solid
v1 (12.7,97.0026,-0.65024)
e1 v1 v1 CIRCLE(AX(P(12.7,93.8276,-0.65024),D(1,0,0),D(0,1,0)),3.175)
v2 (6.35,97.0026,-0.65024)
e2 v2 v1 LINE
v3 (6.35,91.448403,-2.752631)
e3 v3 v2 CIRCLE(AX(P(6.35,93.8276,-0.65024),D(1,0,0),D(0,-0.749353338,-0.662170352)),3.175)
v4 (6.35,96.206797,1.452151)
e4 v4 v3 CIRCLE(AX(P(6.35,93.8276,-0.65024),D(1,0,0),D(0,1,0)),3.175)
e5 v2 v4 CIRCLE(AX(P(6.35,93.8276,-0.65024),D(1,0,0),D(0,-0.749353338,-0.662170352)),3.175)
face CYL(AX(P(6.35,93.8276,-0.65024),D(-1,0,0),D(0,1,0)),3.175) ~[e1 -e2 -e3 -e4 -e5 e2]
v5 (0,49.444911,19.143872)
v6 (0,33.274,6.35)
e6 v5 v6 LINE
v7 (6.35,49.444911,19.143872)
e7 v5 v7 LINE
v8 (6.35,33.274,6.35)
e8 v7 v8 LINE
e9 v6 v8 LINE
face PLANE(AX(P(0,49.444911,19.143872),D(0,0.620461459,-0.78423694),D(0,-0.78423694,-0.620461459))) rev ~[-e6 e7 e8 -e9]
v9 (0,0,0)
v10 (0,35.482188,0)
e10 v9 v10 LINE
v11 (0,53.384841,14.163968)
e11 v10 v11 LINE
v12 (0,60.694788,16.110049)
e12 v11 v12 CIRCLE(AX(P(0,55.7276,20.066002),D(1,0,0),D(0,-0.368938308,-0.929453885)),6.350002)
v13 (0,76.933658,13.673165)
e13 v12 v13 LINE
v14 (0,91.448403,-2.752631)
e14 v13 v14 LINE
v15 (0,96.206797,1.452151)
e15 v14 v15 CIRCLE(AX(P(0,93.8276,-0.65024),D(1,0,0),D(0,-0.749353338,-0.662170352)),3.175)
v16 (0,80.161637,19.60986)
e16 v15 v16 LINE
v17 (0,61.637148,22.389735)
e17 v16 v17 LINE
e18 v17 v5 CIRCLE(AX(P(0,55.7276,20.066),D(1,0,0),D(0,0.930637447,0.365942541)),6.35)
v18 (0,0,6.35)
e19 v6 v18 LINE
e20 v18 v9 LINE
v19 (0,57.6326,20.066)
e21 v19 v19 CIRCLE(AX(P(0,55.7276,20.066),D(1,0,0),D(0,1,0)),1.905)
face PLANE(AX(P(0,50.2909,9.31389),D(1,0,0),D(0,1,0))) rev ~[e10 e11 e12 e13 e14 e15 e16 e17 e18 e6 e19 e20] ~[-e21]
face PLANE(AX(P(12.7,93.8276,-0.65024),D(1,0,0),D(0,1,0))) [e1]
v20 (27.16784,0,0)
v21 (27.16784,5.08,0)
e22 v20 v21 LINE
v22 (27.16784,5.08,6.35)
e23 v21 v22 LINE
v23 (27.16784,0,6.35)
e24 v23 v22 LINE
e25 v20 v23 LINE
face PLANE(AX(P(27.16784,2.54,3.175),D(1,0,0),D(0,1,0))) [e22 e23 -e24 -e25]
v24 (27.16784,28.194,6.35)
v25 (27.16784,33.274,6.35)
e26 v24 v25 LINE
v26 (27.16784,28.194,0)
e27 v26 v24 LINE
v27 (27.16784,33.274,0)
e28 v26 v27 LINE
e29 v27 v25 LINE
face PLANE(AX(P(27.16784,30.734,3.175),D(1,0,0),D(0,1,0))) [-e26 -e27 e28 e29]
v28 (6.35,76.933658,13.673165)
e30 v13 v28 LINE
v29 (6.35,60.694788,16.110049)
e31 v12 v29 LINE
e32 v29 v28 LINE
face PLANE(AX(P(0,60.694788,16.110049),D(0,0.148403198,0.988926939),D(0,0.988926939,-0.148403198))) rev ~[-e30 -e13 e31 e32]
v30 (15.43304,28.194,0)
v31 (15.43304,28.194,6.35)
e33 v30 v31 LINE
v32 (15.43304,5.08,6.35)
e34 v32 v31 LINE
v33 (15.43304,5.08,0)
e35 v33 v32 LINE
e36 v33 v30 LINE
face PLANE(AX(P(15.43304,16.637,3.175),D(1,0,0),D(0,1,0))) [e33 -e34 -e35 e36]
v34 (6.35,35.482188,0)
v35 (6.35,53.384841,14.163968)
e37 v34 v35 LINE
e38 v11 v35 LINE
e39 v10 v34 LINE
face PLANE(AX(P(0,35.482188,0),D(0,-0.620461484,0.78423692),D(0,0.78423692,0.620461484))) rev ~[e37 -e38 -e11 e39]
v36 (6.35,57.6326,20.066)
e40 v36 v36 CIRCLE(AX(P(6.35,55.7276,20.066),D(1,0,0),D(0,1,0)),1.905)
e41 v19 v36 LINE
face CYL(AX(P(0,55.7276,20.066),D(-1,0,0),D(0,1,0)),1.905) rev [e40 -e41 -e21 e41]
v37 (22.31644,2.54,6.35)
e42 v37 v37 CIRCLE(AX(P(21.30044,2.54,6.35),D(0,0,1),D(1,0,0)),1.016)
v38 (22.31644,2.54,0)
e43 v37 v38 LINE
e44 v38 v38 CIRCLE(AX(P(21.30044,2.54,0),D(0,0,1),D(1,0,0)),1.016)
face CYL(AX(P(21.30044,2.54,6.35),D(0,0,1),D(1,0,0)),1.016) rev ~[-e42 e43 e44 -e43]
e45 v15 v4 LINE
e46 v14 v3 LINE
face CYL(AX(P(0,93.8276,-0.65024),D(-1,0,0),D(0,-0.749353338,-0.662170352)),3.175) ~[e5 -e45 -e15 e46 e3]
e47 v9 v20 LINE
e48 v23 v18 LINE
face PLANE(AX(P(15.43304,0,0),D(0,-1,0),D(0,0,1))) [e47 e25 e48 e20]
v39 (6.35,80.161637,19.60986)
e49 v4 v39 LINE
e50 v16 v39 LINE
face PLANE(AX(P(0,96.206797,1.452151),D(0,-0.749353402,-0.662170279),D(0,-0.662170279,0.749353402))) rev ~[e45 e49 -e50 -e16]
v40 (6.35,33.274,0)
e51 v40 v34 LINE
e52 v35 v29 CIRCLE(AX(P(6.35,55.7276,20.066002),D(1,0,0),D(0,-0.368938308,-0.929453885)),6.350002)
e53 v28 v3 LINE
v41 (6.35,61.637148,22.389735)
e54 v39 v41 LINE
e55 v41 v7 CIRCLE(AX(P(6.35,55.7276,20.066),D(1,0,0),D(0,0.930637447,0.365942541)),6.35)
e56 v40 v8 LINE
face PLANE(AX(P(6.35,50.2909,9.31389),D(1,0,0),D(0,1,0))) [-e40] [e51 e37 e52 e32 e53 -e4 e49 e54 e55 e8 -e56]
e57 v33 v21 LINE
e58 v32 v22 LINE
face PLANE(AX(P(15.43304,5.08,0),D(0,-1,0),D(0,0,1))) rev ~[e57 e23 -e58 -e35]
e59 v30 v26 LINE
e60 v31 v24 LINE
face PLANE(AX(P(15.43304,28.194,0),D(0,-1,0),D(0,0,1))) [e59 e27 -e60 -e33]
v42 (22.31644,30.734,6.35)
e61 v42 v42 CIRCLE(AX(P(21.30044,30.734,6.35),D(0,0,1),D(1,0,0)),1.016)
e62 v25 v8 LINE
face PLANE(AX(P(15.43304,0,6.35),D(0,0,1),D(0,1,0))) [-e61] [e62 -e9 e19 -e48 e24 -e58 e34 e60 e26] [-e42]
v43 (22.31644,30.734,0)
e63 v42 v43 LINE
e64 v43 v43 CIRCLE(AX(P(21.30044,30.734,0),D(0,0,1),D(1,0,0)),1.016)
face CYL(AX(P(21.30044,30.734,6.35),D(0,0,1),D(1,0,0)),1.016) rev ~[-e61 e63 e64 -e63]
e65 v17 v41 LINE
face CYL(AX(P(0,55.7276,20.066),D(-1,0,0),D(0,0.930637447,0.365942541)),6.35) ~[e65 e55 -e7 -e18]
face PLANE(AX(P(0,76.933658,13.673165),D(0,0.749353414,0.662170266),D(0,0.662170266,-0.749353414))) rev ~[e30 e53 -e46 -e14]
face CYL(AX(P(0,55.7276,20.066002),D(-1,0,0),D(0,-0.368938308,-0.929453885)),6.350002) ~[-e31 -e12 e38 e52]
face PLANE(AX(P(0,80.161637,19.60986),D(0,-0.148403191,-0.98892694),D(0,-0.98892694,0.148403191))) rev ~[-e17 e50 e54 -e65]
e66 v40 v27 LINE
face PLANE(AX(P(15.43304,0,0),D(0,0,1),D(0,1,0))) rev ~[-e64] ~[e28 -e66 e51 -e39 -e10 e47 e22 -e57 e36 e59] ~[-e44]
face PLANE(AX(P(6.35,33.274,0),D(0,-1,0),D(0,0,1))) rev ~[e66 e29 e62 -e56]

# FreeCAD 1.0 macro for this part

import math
import FreeCAD as App
import Part
import Sketcher
from FreeCAD import Vector
Q = App.Units.Quantity


def add_polygon(sketch, points):
    """Adds a closed chain of lines whose ends are joined by coincident constraints."""
    first, n = sketch.GeometryCount, len(points)
    for a, b in zip(points, points[1:] + points[:1]):
        sketch.addGeometry(Part.LineSegment(App.Vector(*a, 0), App.Vector(*b, 0)), False)
    for i in range(n):
        sketch.addConstraint(Sketcher.Constraint("Coincident", first + i, 2, first + (i + 1) % n, 1))

doc = App.newDocument("Part")
body = doc.addObject("PartDesign::Body", "Body")

sketch1 = body.newObject("Sketcher::SketchObject", "Sketch")
sketch1.AttachmentSupport = (doc.getObject("YZ_Plane"), [""])
sketch1.MapMode = "FlatFace"
sketch1.addGeometry([
    Part.LineSegment(Vector(0, 6.3, 0), Vector(0, 0, 0)),
    Part.LineSegment(Vector(0, 0, 0), Vector(35.5, 0, 0)),
    Part.LineSegment(Vector(35.5, 0, 0), Vector(53.4, 14.2, 0)),
    Part.ArcOfCircle(Part.Circle(Vector(55.7, 20.1, 0), Vector(0, 0, 1), 6.4), math.radians(-112), math.radians(-39)),
    Part.LineSegment(Vector(60.7, 16.1, 0), Vector(76.9, 13.7, 0)),
    Part.LineSegment(Vector(76.9, 13.7, 0), Vector(91.4, -2.8, 0)),
    Part.ArcOfCircle(Part.Circle(Vector(93.8, -0.7, 0), Vector(0, 0, 1), 3.2), math.radians(-139), math.radians(41)),
    Part.LineSegment(Vector(96.2, 1.5, 0), Vector(80.2, 19.6, 0)),
    Part.LineSegment(Vector(80.2, 19.6, 0), Vector(61.6, 22.4, 0)),
    Part.ArcOfCircle(Part.Circle(Vector(55.7, 20.1, 0), Vector(0, 0, 1), 6.4), math.radians(21), math.radians(188)),
    Part.LineSegment(Vector(49.4, 19.1, 0), Vector(33.3, 6.3, 0)),
    Part.LineSegment(Vector(33.3, 6.3, 0), Vector(0, 6.3, 0)),
    Part.Circle(Vector(55.7, 20.1, 0), Vector(0, 0, 1), 1.9),
], False)
sketch1.addConstraint([
    Sketcher.Constraint("Coincident", 0, 2, 1, 1),
    Sketcher.Constraint("Coincident", 1, 2, 2, 1),
    Sketcher.Constraint("Coincident", 2, 2, 3, 1),
    Sketcher.Constraint("Coincident", 3, 2, 4, 1),
    Sketcher.Constraint("Coincident", 4, 2, 5, 1),
    Sketcher.Constraint("Tangent", 5, 2, 6, 1),
    Sketcher.Constraint("Tangent", 6, 2, 7, 1),
    Sketcher.Constraint("Coincident", 7, 2, 8, 1),
    Sketcher.Constraint("Coincident", 8, 2, 9, 1),
    Sketcher.Constraint("Coincident", 9, 2, 10, 1),
    Sketcher.Constraint("Coincident", 10, 2, 11, 1),
    Sketcher.Constraint("Coincident", 11, 2, 0, 1),
    Sketcher.Constraint("Vertical", 0),
    Sketcher.Constraint("Horizontal", 1),
    Sketcher.Constraint("Horizontal", 11),
    Sketcher.Constraint("Coincident", 0, 2, -1, 1),
    Sketcher.Constraint("Coincident", 9, 3, 3, 3),
    Sketcher.Constraint("Coincident", 12, 3, 3, 3),
    Sketcher.Constraint("Equal", 3, 9),
    Sketcher.Constraint("Parallel", 5, 7),
    Sketcher.Constraint("Parallel", 4, 8),
    Sketcher.Constraint("Parallel", 2, 10),
    Sketcher.Constraint("Diameter", 12, Q("0.15 in")),
    Sketcher.Constraint("Radius", 3, Q("0.2500001 in")),
    Sketcher.Constraint("Radius", 6, Q("0.125 in")),
    Sketcher.Constraint("DistanceX", 11, 2, 11, 1, Q("1.31 in")),
    Sketcher.Constraint("DistanceY", 0, 2, 0, 1, Q("0.25 in")),
    Sketcher.Constraint("DistanceX", 3, 3, 6, 3, Q("1.5 in")),
    Sketcher.Constraint("DistanceY", -1, 1, 3, 3, Q("0.7900001 in")),
    Sketcher.Constraint("DistanceX", -1, 1, 3, 3, Q("2.194 in")),
    Sketcher.Constraint("DistanceY", 6, 3, -1, 1, Q("0.0256 in")),
    Sketcher.Constraint("DistanceX", 1, 2, 3, 2, Q("25.2126 mm")),
    Sketcher.Constraint("DistanceY", 5, 2, 2, 2, Q("16.916599 mm")),
    Sketcher.Constraint("DistanceY", 6, 2, 3, 2, Q("14.657898 mm")),
    Sketcher.Constraint("DistanceY", 6, 3, 7, 2, Q("20.2601 mm")),
    Sketcher.Constraint("Distance", 2, Q("22.828118 mm")),
    Sketcher.Constraint("Distance", 5, Q("21.919959 mm")),
])
pad1 = body.newObject("PartDesign::Pad", "Pad")
pad1.Profile = sketch1
pad1.Length = Q("0.25 in")

sketch2 = body.newObject("Sketcher::SketchObject", "Sketch001")
sketch2.AttachmentSupport = (doc.getObject("YZ_Plane"), [""])
sketch2.MapMode = "FlatFace"
sketch2.AttachmentOffset = App.Placement(Vector(0, 0, 0.25 * 25.4), App.Rotation())
sketch2.addGeometry(Part.Circle(Vector(93.8, -0.7, 0), Vector(0, 0, 1), 3.2), False)
sketch2.addConstraint([
    Sketcher.Constraint("Diameter", 0, Q("0.25 in")),
    Sketcher.Constraint("DistanceX", -1, 1, 0, 3, Q("3.694 in")),
    Sketcher.Constraint("DistanceY", 0, 3, -1, 1, Q("0.0256 in")),
])
pad2 = body.newObject("PartDesign::Pad", "Pad001")
pad2.Profile = sketch2
pad2.Length = Q("0.25 in")

sketch3 = body.newObject("Sketcher::SketchObject", "Sketch002")
sketch3.AttachmentSupport = (doc.getObject("YZ_Plane"), [""])
sketch3.MapMode = "FlatFace"
sketch3.AttachmentOffset = App.Placement(Vector(0, 0, 0.25 * 25.4), App.Rotation())
add_polygon(sketch3, [(0, 6), (0, 0), (33, 0), (33, 6)])
sketch3.addConstraint([
    Sketcher.Constraint("Vertical", 0),
    Sketcher.Constraint("Horizontal", 1),
    Sketcher.Constraint("Vertical", 2),
    Sketcher.Constraint("Horizontal", 3),
    Sketcher.Constraint("Coincident", 0, 2, -1, 1),
    Sketcher.Constraint("DistanceX", 1, 1, 1, 2, Q("1.31 in")),
    Sketcher.Constraint("DistanceY", 0, 2, 0, 1, Q("0.25 in")),
])
pad3 = body.newObject("PartDesign::Pad", "Pad002")
pad3.Profile = sketch3
pad3.Length = Q("0.3576 in")

sketch4 = body.newObject("Sketcher::SketchObject", "Sketch003")
sketch4.AttachmentSupport = (doc.getObject("YZ_Plane"), [""])
sketch4.MapMode = "FlatFace"
sketch4.AttachmentOffset = App.Placement(Vector(0, 0, 0.6076 * 25.4), App.Rotation())
add_polygon(sketch4, [(0, 6), (0, 0), (5, 0), (5, 6)])
add_polygon(sketch4, [(28, 6), (28, 0), (33, 0), (33, 6)])
sketch4.addConstraint([
    Sketcher.Constraint("Vertical", 0),
    Sketcher.Constraint("Horizontal", 1),
    Sketcher.Constraint("Vertical", 2),
    Sketcher.Constraint("Horizontal", 3),
    Sketcher.Constraint("Vertical", 4),
    Sketcher.Constraint("Horizontal", 5),
    Sketcher.Constraint("Vertical", 6),
    Sketcher.Constraint("Horizontal", 7),
    Sketcher.Constraint("Coincident", 0, 2, -1, 1),
    Sketcher.Constraint("PointOnObject", 4, 2, -1),
    Sketcher.Constraint("Horizontal", 3, 2, 6, 2),
    Sketcher.Constraint("Equal", 3, 5),
    Sketcher.Constraint("DistanceX", 1, 1, 1, 2, Q("0.2 in")),
    Sketcher.Constraint("DistanceY", 0, 2, 0, 1, Q("0.25 in")),
    Sketcher.Constraint("DistanceX", -1, 1, 4, 2, Q("1.11 in")),
])
pad4 = body.newObject("PartDesign::Pad", "Pad003")
pad4.Profile = sketch4
pad4.Length = Q("0.462 in")

sketch5 = body.newObject("Sketcher::SketchObject", "Sketch004")
sketch5.AttachmentSupport = (doc.getObject("XY_Plane"), [""])
sketch5.MapMode = "FlatFace"
sketch5.AttachmentOffset = App.Placement(Vector(0, 0, 0.25 * 25.4), App.Rotation())
sketch5.addGeometry([
    Part.Circle(Vector(21.3, 30.7, 0), Vector(0, 0, 1), 1),
    Part.Circle(Vector(21.3, 2.5, 0), Vector(0, 0, 1), 1),
], False)
sketch5.addConstraint([
    Sketcher.Constraint("Equal", 0, 1),
    Sketcher.Constraint("Vertical", 0, 3, 1, 3),
    Sketcher.Constraint("Diameter", 0, Q("0.08 in")),
    Sketcher.Constraint("DistanceY", -1, 1, 1, 3, Q("0.1 in")),
    Sketcher.Constraint("DistanceY", -1, 1, 0, 3, Q("1.21 in")),
    Sketcher.Constraint("DistanceX", -1, 1, 0, 3, Q("0.8386 in")),
])
pocket1 = body.newObject("PartDesign::Pocket", "Pocket")
pocket1.Profile = sketch5
pocket1.Type = "ThroughAll"

doc.recompute()
